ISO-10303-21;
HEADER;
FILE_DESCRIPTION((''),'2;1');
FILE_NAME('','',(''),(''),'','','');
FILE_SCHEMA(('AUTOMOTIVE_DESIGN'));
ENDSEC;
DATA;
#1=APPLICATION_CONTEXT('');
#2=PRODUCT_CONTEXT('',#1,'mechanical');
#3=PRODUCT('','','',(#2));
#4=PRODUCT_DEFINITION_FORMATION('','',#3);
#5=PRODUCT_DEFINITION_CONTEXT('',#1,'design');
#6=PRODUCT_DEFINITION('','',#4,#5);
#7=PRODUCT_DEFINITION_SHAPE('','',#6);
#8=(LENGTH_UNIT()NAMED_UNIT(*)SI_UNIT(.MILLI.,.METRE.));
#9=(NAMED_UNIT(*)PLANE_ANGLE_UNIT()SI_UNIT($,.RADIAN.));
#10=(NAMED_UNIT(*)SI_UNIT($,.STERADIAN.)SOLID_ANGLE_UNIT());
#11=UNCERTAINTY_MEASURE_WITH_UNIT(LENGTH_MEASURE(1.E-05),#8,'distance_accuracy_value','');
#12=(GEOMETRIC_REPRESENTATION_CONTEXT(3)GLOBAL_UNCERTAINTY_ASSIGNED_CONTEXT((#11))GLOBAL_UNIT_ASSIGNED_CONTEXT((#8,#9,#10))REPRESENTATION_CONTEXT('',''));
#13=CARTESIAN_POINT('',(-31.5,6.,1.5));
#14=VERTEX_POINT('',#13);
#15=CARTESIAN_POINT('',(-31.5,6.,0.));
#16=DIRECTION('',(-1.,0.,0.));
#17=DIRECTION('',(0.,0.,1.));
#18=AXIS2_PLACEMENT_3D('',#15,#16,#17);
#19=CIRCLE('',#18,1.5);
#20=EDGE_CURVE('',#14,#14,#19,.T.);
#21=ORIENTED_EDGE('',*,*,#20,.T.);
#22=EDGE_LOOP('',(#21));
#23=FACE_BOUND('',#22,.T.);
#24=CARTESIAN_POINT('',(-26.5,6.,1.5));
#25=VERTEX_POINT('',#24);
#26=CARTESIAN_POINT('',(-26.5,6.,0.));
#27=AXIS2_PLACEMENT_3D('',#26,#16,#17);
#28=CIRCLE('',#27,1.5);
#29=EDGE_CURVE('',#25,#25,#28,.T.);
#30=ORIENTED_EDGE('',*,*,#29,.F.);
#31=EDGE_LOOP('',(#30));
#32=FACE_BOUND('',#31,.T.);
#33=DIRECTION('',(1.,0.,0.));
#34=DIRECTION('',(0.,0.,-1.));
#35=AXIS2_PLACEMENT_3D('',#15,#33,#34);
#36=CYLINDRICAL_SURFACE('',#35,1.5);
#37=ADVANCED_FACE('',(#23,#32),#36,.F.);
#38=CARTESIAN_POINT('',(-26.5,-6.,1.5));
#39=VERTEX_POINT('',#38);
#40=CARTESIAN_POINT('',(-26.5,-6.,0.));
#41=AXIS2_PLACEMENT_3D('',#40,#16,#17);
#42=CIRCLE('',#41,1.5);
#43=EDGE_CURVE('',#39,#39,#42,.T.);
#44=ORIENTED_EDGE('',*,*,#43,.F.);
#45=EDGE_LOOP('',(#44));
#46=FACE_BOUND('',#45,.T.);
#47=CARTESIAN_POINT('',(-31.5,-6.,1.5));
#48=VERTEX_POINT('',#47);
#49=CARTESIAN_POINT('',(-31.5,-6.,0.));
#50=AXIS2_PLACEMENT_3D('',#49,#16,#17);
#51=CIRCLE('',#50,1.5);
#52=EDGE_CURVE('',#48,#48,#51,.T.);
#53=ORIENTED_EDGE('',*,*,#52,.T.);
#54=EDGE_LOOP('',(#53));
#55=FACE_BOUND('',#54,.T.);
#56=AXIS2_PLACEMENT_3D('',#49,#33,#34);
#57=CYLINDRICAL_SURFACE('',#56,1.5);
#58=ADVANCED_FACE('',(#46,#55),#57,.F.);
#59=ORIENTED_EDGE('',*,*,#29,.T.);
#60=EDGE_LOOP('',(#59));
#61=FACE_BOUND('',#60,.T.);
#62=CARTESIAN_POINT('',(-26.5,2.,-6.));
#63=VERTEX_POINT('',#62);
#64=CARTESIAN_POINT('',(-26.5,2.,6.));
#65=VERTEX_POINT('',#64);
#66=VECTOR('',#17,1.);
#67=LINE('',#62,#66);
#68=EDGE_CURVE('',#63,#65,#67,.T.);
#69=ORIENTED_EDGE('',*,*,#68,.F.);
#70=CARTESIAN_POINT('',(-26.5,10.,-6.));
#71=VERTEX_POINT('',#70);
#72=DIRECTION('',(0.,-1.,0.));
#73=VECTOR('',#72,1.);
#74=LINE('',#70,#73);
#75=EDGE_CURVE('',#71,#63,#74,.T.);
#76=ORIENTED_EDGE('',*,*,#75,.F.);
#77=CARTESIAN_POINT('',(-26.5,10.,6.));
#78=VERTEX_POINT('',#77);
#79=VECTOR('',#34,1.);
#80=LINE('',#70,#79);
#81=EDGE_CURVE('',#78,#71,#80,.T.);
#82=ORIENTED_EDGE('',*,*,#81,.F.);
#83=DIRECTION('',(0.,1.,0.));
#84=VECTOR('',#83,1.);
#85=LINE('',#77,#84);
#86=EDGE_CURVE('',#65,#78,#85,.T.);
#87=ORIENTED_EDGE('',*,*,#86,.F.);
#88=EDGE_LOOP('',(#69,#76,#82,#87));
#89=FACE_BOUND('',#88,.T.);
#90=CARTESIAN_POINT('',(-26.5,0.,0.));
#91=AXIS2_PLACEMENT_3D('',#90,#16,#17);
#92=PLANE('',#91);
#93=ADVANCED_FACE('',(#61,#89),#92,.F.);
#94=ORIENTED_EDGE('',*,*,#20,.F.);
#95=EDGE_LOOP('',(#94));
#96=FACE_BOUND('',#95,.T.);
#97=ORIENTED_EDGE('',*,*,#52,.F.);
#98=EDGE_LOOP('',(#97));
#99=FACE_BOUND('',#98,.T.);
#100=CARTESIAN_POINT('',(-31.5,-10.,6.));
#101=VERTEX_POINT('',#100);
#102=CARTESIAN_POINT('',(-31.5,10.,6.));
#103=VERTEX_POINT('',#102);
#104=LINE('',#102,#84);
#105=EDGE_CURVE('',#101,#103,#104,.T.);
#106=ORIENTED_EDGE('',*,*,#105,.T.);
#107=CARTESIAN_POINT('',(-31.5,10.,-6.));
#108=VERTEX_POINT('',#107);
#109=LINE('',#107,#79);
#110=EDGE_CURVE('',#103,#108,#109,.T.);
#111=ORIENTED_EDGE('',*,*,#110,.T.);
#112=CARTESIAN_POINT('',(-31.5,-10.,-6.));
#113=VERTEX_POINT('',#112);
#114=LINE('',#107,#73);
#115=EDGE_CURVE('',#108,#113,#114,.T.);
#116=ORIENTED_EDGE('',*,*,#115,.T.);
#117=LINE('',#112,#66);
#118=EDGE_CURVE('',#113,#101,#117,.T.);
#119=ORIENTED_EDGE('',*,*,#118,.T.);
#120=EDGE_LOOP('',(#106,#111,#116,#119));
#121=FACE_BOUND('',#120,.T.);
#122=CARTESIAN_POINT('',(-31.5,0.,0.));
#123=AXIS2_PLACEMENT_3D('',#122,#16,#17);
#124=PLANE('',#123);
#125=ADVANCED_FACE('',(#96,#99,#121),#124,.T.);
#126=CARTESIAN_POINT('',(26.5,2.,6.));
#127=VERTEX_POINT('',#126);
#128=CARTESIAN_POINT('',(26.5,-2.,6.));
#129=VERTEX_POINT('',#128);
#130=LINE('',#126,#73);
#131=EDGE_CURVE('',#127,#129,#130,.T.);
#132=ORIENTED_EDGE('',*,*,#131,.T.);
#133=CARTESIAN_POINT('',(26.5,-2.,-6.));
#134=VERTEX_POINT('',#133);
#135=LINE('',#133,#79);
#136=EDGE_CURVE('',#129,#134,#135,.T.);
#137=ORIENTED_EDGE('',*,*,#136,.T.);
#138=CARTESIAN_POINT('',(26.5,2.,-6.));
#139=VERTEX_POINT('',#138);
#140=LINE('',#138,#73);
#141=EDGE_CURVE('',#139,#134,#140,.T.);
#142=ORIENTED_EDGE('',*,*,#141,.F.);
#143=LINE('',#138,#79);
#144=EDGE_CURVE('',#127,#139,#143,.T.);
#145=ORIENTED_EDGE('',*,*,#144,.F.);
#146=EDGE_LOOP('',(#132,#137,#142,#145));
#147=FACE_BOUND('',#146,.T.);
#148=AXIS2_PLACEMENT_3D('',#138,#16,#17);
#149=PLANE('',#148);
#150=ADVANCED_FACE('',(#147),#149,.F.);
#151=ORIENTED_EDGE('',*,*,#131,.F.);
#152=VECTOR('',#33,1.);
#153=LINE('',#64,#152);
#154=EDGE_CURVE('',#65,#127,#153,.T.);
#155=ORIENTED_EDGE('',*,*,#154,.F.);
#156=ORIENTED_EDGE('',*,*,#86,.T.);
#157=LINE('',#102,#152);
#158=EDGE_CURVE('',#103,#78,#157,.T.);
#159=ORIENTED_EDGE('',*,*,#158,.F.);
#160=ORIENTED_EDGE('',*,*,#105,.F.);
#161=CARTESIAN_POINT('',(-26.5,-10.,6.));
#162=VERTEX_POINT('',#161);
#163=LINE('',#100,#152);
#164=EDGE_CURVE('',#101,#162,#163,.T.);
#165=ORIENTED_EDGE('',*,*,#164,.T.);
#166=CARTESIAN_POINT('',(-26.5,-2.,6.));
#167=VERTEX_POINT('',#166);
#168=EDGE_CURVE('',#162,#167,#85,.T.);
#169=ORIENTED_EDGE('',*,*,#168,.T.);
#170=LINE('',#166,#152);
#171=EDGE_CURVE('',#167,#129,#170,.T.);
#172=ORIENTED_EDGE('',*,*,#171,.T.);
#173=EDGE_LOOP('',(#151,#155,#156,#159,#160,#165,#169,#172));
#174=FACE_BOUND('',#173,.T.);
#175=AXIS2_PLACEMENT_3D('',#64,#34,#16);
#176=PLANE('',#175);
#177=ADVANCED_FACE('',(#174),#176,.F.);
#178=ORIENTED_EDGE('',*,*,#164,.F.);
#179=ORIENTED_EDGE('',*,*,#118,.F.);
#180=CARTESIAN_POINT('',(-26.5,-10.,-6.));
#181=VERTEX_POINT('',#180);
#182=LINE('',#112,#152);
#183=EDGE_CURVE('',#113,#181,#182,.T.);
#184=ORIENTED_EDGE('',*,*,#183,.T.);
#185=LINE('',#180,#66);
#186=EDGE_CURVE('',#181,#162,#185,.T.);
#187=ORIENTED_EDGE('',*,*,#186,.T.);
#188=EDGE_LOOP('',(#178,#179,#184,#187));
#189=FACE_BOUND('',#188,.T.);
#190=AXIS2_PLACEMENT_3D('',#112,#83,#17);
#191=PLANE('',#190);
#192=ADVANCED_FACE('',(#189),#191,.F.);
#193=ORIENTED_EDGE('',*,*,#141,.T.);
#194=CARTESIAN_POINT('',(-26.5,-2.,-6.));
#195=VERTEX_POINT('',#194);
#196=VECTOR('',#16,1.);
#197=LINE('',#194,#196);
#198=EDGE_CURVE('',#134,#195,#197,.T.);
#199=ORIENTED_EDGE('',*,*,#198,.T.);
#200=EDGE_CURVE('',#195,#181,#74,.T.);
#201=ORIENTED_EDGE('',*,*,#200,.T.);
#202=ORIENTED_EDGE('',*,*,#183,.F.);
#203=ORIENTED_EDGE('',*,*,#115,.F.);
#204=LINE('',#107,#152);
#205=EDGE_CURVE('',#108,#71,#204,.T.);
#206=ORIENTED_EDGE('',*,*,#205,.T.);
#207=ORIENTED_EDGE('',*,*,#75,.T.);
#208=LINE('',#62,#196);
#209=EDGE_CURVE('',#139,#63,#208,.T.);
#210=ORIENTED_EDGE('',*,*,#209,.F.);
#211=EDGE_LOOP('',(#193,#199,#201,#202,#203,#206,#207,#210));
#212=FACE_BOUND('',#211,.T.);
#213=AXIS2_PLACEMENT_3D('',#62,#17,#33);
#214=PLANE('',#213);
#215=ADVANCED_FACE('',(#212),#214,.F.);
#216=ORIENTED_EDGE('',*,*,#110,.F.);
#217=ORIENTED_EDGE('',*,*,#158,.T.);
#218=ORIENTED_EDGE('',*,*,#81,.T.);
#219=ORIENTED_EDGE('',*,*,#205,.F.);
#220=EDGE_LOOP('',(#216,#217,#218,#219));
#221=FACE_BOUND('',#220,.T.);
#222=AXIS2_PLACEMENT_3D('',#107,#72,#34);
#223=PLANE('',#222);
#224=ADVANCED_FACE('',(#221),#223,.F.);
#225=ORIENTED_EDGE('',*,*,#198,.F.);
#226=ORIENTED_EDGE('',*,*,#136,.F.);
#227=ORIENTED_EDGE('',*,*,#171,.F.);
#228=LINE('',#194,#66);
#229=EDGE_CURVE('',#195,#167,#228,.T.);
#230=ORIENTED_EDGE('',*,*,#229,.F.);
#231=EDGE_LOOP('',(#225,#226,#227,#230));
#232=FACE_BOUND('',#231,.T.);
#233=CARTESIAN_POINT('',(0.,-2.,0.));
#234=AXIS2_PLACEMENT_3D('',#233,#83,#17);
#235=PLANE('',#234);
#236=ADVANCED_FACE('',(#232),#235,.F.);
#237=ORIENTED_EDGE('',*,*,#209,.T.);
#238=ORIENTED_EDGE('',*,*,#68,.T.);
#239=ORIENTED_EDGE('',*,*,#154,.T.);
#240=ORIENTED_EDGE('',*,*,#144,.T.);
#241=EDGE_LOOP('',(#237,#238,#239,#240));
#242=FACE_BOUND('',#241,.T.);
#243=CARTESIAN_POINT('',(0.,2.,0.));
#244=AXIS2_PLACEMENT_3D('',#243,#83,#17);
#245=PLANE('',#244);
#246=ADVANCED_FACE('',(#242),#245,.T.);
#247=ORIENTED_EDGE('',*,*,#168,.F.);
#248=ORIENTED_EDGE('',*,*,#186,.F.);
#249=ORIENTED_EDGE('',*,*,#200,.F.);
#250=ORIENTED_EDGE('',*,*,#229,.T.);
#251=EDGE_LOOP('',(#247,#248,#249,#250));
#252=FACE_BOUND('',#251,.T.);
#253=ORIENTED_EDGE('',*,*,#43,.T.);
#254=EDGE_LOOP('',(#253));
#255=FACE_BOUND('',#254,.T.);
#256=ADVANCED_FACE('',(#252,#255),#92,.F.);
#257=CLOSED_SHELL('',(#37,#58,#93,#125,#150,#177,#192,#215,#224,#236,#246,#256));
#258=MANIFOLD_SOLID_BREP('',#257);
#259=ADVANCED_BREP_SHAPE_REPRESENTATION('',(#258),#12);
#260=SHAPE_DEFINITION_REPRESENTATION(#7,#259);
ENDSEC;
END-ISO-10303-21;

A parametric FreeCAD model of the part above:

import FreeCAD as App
import Part
import Sketcher
from FreeCAD import Vector

doc = App.newDocument("Part")
body = doc.addObject("PartDesign::Body", "Body")

# Sketch on XZ plane
sketch1 = body.newObject("Sketcher::SketchObject", "Sketch")
sketch1.AttachmentSupport = (doc.getObject("XZ_Plane"), [""])
sketch1.MapMode = "FlatFace"
sketch1.addGeometry(Part.LineSegment(Vector(-26, -6, 0), Vector(-26, 6, 0)), False)
sketch1.addGeometry(Part.LineSegment(Vector(-26, 6, 0), Vector(26, 6, 0)), False)
sketch1.addGeometry(Part.LineSegment(Vector(26, 6, 0), Vector(26, -6, 0)), False)
sketch1.addGeometry(Part.LineSegment(Vector(26, -6, 0), Vector(-26, -6, 0)), False)
sketch1.addConstraint(Sketcher.Constraint("Coincident", 0, 2, 1, 1))
sketch1.addConstraint(Sketcher.Constraint("Coincident", 1, 2, 2, 1))
sketch1.addConstraint(Sketcher.Constraint("Coincident", 2, 2, 3, 1))
sketch1.addConstraint(Sketcher.Constraint("Coincident", 3, 2, 0, 1))
sketch1.addConstraint(Sketcher.Constraint("Vertical", 0))
sketch1.addConstraint(Sketcher.Constraint("Horizontal", 1))
sketch1.addConstraint(Sketcher.Constraint("Vertical", 2))
sketch1.addConstraint(Sketcher.Constraint("Horizontal", 3))
sketch1.addConstraint(Sketcher.Constraint("Symmetric", 0, 2, 2, 2, -1, 1))
sketch1.addConstraint(Sketcher.Constraint("DistanceX", 1, 1, 1, 2, 53.0))
sketch1.addConstraint(Sketcher.Constraint("DistanceY", 0, 1, 0, 2, 12.0))
pad1 = body.newObject("PartDesign::Pad", "Pad")
pad1.Profile = sketch1
pad1.Length = 4
pad1.Midplane = True

# Sketch on YZ plane
sketch2 = body.newObject("Sketcher::SketchObject", "Sketch001")
sketch2.AttachmentSupport = (doc.getObject("YZ_Plane"), [""])
sketch2.MapMode = "FlatFace"
sketch2.AttachmentOffset = App.Placement(Vector(0, 0, -26.5), App.Rotation())
sketch2.addGeometry(Part.LineSegment(Vector(10, -6, 0), Vector(-10, -6, 0)), False)
sketch2.addGeometry(Part.LineSegment(Vector(-10, -6, 0), Vector(-10, 6, 0)), False)
sketch2.addGeometry(Part.LineSegment(Vector(-10, 6, 0), Vector(10, 6, 0)), False)
sketch2.addGeometry(Part.LineSegment(Vector(10, 6, 0), Vector(10, -6, 0)), False)
sketch2.addGeometry(Part.Circle(Vector(-6, 0, 0), Vector(0, 0, 1), 1.5), False)
sketch2.addGeometry(Part.Circle(Vector(6, 0, 0), Vector(0, 0, 1), 1.5), False)
sketch2.addConstraint(Sketcher.Constraint("Coincident", 0, 2, 1, 1))
sketch2.addConstraint(Sketcher.Constraint("Coincident", 1, 2, 2, 1))
sketch2.addConstraint(Sketcher.Constraint("Coincident", 2, 2, 3, 1))
sketch2.addConstraint(Sketcher.Constraint("Coincident", 3, 2, 0, 1))
sketch2.addConstraint(Sketcher.Constraint("Horizontal", 0))
sketch2.addConstraint(Sketcher.Constraint("Vertical", 1))
sketch2.addConstraint(Sketcher.Constraint("Horizontal", 2))
sketch2.addConstraint(Sketcher.Constraint("Vertical", 3))
sketch2.addConstraint(Sketcher.Constraint("Equal", 4, 5))
sketch2.addConstraint(Sketcher.Constraint("Symmetric", 4, 3, 5, 3, -1, 1))
sketch2.addConstraint(Sketcher.Constraint("Symmetric", 0, 2, 2, 2, -1, 1))
sketch2.addConstraint(Sketcher.Constraint("PointOnObject", 4, 3, -1))
sketch2.addConstraint(Sketcher.Constraint("Diameter", 4, 3.0))
sketch2.addConstraint(Sketcher.Constraint("DistanceX", 0, 2, 0, 1, 20.0))
sketch2.addConstraint(Sketcher.Constraint("DistanceY", 1, 1, 1, 2, 12.0))
sketch2.addConstraint(Sketcher.Constraint("DistanceX", 4, 3, -1, 1, 6.0))
pad2 = body.newObject("PartDesign::Pad", "Pad001")
pad2.Profile = sketch2
pad2.Length = 5
pad2.Reversed = True

doc.recompute()
